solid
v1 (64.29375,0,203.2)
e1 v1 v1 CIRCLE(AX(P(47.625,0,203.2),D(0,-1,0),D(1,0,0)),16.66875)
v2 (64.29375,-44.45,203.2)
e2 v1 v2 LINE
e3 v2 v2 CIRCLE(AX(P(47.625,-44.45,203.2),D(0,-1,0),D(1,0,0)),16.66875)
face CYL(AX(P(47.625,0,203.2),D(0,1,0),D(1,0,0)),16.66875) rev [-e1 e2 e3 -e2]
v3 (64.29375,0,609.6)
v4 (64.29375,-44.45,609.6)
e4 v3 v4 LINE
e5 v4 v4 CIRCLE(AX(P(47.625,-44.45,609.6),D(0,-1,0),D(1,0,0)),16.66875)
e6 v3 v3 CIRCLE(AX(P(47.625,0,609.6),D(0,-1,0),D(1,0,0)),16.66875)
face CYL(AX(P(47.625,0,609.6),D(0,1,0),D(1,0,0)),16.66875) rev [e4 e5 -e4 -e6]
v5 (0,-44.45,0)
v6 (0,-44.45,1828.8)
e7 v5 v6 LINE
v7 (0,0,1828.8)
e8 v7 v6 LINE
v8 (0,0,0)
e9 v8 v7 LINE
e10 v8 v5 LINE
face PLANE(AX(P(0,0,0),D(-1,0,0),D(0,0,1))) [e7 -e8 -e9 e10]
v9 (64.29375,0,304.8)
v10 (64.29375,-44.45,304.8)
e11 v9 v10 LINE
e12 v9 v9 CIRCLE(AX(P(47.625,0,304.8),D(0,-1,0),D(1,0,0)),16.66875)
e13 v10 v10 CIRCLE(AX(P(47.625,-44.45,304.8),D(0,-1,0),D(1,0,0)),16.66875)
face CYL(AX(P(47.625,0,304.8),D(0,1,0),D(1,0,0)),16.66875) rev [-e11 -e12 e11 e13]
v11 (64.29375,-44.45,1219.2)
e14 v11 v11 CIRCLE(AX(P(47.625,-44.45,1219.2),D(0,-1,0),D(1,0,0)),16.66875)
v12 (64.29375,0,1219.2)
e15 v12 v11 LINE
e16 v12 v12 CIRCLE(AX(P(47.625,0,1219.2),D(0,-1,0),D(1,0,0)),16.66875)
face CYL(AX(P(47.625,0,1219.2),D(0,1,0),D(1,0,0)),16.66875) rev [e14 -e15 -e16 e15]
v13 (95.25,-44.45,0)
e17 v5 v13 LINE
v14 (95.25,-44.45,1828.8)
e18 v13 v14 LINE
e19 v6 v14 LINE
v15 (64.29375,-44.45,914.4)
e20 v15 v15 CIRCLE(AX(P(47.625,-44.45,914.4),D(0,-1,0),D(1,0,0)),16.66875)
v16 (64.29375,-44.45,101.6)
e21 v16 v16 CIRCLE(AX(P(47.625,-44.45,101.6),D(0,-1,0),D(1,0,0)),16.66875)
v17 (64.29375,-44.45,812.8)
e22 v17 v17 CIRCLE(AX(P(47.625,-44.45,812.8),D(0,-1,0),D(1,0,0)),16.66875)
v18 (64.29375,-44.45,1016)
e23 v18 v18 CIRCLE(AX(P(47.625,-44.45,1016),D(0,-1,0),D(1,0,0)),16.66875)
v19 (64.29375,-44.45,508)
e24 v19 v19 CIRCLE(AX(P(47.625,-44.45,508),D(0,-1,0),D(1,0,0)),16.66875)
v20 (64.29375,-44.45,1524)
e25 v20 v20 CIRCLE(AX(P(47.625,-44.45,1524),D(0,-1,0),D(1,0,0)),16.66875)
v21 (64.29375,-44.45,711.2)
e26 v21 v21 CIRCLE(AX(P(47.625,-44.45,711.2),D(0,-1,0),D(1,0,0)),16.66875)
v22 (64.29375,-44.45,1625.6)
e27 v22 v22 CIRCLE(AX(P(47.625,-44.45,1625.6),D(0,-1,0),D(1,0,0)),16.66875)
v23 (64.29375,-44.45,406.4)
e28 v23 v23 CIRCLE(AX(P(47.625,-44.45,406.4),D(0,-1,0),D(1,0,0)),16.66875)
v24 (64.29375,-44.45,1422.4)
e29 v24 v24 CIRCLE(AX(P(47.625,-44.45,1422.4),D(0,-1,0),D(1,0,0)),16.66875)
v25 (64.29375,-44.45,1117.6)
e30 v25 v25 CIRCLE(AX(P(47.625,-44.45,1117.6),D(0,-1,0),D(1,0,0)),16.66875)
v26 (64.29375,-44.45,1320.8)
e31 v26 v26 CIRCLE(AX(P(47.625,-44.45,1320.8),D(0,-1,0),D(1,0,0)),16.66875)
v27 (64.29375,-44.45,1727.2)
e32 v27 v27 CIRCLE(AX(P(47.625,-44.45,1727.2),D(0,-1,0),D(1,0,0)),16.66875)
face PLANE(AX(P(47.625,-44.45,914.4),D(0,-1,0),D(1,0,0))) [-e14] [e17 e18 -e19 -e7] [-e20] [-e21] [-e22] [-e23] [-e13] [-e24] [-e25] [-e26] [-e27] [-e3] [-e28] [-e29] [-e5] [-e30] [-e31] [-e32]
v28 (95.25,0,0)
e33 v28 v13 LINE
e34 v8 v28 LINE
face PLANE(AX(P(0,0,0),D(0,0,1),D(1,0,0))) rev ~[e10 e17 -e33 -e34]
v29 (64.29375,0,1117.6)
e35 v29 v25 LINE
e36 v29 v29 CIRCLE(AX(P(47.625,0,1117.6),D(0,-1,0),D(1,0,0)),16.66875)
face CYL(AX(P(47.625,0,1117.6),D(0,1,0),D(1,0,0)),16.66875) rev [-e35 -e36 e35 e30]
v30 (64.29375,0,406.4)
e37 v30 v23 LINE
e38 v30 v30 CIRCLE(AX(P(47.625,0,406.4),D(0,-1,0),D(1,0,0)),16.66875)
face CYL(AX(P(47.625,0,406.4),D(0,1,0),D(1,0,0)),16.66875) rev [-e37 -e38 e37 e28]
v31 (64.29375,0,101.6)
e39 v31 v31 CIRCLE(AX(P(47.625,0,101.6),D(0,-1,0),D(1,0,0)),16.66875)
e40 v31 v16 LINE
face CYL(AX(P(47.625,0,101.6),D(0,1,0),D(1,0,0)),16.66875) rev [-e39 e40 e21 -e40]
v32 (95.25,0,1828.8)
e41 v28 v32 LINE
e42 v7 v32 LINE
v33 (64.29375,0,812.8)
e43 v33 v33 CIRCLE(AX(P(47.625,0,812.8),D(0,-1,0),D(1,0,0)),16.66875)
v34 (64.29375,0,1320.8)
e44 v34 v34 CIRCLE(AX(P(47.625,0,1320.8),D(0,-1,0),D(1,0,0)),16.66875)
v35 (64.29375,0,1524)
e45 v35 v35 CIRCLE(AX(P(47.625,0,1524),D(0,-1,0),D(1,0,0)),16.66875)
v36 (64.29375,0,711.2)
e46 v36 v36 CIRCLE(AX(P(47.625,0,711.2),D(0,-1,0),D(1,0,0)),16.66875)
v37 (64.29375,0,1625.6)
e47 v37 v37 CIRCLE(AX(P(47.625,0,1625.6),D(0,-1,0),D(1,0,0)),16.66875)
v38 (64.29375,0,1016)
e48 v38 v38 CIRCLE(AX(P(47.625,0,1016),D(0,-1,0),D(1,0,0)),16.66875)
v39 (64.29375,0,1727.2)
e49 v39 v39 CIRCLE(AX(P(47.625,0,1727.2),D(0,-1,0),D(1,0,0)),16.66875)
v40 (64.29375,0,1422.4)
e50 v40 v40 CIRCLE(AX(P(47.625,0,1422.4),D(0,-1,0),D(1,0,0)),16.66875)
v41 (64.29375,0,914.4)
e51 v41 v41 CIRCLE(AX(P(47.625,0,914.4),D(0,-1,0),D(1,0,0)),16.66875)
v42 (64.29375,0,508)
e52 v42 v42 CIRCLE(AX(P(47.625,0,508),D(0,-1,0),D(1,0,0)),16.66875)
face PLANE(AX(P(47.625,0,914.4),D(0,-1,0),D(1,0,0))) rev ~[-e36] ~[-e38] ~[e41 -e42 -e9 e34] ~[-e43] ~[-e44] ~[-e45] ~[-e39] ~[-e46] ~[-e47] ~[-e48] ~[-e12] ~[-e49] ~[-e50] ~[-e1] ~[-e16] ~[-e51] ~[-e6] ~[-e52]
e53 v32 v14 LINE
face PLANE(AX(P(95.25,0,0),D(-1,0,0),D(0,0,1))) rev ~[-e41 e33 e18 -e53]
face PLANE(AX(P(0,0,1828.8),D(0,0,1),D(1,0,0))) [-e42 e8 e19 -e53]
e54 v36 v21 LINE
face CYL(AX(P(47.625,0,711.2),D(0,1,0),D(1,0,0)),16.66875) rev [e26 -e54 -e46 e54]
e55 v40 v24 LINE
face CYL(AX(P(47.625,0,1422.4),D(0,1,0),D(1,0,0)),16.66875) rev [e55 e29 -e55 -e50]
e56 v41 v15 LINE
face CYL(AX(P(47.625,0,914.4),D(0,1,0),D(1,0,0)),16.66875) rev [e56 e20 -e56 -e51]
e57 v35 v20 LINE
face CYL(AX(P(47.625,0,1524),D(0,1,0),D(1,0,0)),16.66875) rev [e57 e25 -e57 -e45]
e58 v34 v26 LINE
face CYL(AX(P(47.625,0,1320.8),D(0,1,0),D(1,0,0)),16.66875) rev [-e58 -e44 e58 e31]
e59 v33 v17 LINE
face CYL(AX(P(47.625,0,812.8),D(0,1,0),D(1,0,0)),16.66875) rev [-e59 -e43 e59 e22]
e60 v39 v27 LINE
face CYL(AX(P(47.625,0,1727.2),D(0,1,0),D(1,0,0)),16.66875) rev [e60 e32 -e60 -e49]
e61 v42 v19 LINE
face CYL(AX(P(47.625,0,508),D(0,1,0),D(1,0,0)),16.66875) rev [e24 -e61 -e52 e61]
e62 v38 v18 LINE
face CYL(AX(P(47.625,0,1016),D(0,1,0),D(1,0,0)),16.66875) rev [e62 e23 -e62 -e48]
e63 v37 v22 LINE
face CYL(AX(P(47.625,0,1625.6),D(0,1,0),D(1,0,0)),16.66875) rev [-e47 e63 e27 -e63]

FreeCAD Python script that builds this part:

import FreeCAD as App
import Part
import Sketcher

V = App.Vector
Q = App.Units.Quantity


def add_polygon(sketch, points):
    """Adds a closed chain of lines whose ends are joined by coincident constraints."""
    first, n = sketch.GeometryCount, len(points)
    for a, b in zip(points, points[1:] + points[:1]):
        sketch.addGeometry(Part.LineSegment(App.Vector(*a, 0), App.Vector(*b, 0)), False)
    for i in range(n):
        sketch.addConstraint(Sketcher.Constraint("Coincident", first + i, 2, first + (i + 1) % n, 1))

doc = App.newDocument("Part")
body = doc.addObject("PartDesign::Body", "Body")

sketch1 = doc.addObject("Sketcher::SketchObject", "Sketch")
body.addObject(sketch1)
sketch1.AttachmentSupport = (doc.XZ_Plane, [""])
sketch1.MapMode = "FlatFace"
add_polygon(sketch1, [(0, 1829), (0, 0), (95, 0), (95, 1829)])
sketch1.addGeometry(Part.Circle(V(48, 102, 0), V(0, 0, 1), 17), False)
sketch1.addGeometry(Part.Circle(V(48, 203, 0), V(0, 0, 1), 17), False)
sketch1.addGeometry(Part.Circle(V(48, 305, 0), V(0, 0, 1), 17), False)
sketch1.addGeometry(Part.Circle(V(48, 406, 0), V(0, 0, 1), 17), False)
sketch1.addGeometry(Part.Circle(V(48, 508, 0), V(0, 0, 1), 17), False)
sketch1.addGeometry(Part.Circle(V(48, 610, 0), V(0, 0, 1), 17), False)
sketch1.addGeometry(Part.Circle(V(48, 711, 0), V(0, 0, 1), 17), False)
sketch1.addGeometry(Part.Circle(V(48, 813, 0), V(0, 0, 1), 17), False)
sketch1.addGeometry(Part.Circle(V(48, 914, 0), V(0, 0, 1), 17), False)
sketch1.addGeometry(Part.Circle(V(48, 1016, 0), V(0, 0, 1), 17), False)
sketch1.addGeometry(Part.Circle(V(48, 1118, 0), V(0, 0, 1), 17), False)
sketch1.addGeometry(Part.Circle(V(48, 1219, 0), V(0, 0, 1), 17), False)
sketch1.addGeometry(Part.Circle(V(48, 1321, 0), V(0, 0, 1), 17), False)
sketch1.addGeometry(Part.Circle(V(48, 1422, 0), V(0, 0, 1), 17), False)
sketch1.addGeometry(Part.Circle(V(48, 1524, 0), V(0, 0, 1), 17), False)
sketch1.addGeometry(Part.Circle(V(48, 1626, 0), V(0, 0, 1), 17), False)
sketch1.addGeometry(Part.Circle(V(48, 1727, 0), V(0, 0, 1), 17), False)
sketch1.addConstraint(Sketcher.Constraint("Vertical", 0))
sketch1.addConstraint(Sketcher.Constraint("Horizontal", 1))
sketch1.addConstraint(Sketcher.Constraint("Vertical", 2))
sketch1.addConstraint(Sketcher.Constraint("Horizontal", 3))
sketch1.addConstraint(Sketcher.Constraint("Coincident", 0, 2, -1, 1))
sketch1.addConstraint(Sketcher.Constraint("Equal", 4, 5))
sketch1.addConstraint(Sketcher.Constraint("Equal", 5, 6))
sketch1.addConstraint(Sketcher.Constraint("Equal", 6, 7))
sketch1.addConstraint(Sketcher.Constraint("Equal", 7, 8))
sketch1.addConstraint(Sketcher.Constraint("Equal", 8, 9))
sketch1.addConstraint(Sketcher.Constraint("Equal", 9, 10))
sketch1.addConstraint(Sketcher.Constraint("Equal", 10, 11))
sketch1.addConstraint(Sketcher.Constraint("Equal", 11, 12))
sketch1.addConstraint(Sketcher.Constraint("Equal", 12, 13))
sketch1.addConstraint(Sketcher.Constraint("Equal", 13, 14))
sketch1.addConstraint(Sketcher.Constraint("Equal", 14, 15))
sketch1.addConstraint(Sketcher.Constraint("Equal", 15, 16))
sketch1.addConstraint(Sketcher.Constraint("Equal", 16, 17))
sketch1.addConstraint(Sketcher.Constraint("Equal", 17, 18))
sketch1.addConstraint(Sketcher.Constraint("Equal", 18, 19))
sketch1.addConstraint(Sketcher.Constraint("Equal", 19, 20))
sketch1.addConstraint(Sketcher.Constraint("Vertical", 4, 3, 5, 3))
sketch1.addConstraint(Sketcher.Constraint("Vertical", 5, 3, 6, 3))
sketch1.addConstraint(Sketcher.Constraint("Vertical", 6, 3, 7, 3))
sketch1.addConstraint(Sketcher.Constraint("Vertical", 7, 3, 8, 3))
sketch1.addConstraint(Sketcher.Constraint("Vertical", 8, 3, 9, 3))
sketch1.addConstraint(Sketcher.Constraint("Vertical", 9, 3, 10, 3))
sketch1.addConstraint(Sketcher.Constraint("Vertical", 10, 3, 11, 3))
sketch1.addConstraint(Sketcher.Constraint("Vertical", 11, 3, 12, 3))
sketch1.addConstraint(Sketcher.Constraint("Vertical", 12, 3, 13, 3))
sketch1.addConstraint(Sketcher.Constraint("Vertical", 13, 3, 14, 3))
sketch1.addConstraint(Sketcher.Constraint("Vertical", 14, 3, 15, 3))
sketch1.addConstraint(Sketcher.Constraint("Vertical", 15, 3, 16, 3))
sketch1.addConstraint(Sketcher.Constraint("Vertical", 16, 3, 17, 3))
sketch1.addConstraint(Sketcher.Constraint("Vertical", 17, 3, 18, 3))
sketch1.addConstraint(Sketcher.Constraint("Vertical", 18, 3, 19, 3))
sketch1.addConstraint(Sketcher.Constraint("Vertical", 19, 3, 20, 3))
sketch1.addConstraint(Sketcher.Constraint("DistanceY", 0, 2, 0, 1, Q("72 in")))
sketch1.addConstraint(Sketcher.Constraint("Diameter", 4, Q("1.3125 in")))
sketch1.addConstraint(Sketcher.Constraint("DistanceY", -1, 1, 4, 3, Q("4 in")))
sketch1.addConstraint(Sketcher.Constraint("DistanceY", -1, 1, 5, 3, Q("8 in")))
sketch1.addConstraint(Sketcher.Constraint("DistanceY", -1, 1, 6, 3, Q("12 in")))
sketch1.addConstraint(Sketcher.Constraint("DistanceY", -1, 1, 7, 3, Q("16 in")))
sketch1.addConstraint(Sketcher.Constraint("DistanceY", -1, 1, 8, 3, Q("20 in")))
sketch1.addConstraint(Sketcher.Constraint("DistanceY", -1, 1, 9, 3, Q("24 in")))
sketch1.addConstraint(Sketcher.Constraint("DistanceY", -1, 1, 10, 3, Q("28 in")))
sketch1.addConstraint(Sketcher.Constraint("DistanceY", -1, 1, 11, 3, Q("32 in")))
sketch1.addConstraint(Sketcher.Constraint("DistanceY", -1, 1, 12, 3, Q("36 in")))
sketch1.addConstraint(Sketcher.Constraint("DistanceY", -1, 1, 13, 3, Q("40 in")))
sketch1.addConstraint(Sketcher.Constraint("DistanceY", -1, 1, 14, 3, Q("44 in")))
sketch1.addConstraint(Sketcher.Constraint("DistanceY", -1, 1, 15, 3, Q("48 in")))
sketch1.addConstraint(Sketcher.Constraint("DistanceY", -1, 1, 16, 3, Q("52 in")))
sketch1.addConstraint(Sketcher.Constraint("DistanceY", -1, 1, 17, 3, Q("56 in")))
sketch1.addConstraint(Sketcher.Constraint("DistanceY", -1, 1, 18, 3, Q("60 in")))
sketch1.addConstraint(Sketcher.Constraint("DistanceY", -1, 1, 19, 3, Q("64 in")))
sketch1.addConstraint(Sketcher.Constraint("DistanceY", -1, 1, 20, 3, Q("68 in")))
sketch1.addConstraint(Sketcher.Constraint("DistanceX", 1, 1, 1, 2, Q("3.75 in")))
sketch1.addConstraint(Sketcher.Constraint("DistanceX", -1, 1, 4, 3, Q("1.875 in")))
pad1 = doc.addObject("PartDesign::Pad", "Pad")
body.addObject(pad1)
pad1.Profile = sketch1
pad1.Length = Q("1.75 in")

doc.recompute()
